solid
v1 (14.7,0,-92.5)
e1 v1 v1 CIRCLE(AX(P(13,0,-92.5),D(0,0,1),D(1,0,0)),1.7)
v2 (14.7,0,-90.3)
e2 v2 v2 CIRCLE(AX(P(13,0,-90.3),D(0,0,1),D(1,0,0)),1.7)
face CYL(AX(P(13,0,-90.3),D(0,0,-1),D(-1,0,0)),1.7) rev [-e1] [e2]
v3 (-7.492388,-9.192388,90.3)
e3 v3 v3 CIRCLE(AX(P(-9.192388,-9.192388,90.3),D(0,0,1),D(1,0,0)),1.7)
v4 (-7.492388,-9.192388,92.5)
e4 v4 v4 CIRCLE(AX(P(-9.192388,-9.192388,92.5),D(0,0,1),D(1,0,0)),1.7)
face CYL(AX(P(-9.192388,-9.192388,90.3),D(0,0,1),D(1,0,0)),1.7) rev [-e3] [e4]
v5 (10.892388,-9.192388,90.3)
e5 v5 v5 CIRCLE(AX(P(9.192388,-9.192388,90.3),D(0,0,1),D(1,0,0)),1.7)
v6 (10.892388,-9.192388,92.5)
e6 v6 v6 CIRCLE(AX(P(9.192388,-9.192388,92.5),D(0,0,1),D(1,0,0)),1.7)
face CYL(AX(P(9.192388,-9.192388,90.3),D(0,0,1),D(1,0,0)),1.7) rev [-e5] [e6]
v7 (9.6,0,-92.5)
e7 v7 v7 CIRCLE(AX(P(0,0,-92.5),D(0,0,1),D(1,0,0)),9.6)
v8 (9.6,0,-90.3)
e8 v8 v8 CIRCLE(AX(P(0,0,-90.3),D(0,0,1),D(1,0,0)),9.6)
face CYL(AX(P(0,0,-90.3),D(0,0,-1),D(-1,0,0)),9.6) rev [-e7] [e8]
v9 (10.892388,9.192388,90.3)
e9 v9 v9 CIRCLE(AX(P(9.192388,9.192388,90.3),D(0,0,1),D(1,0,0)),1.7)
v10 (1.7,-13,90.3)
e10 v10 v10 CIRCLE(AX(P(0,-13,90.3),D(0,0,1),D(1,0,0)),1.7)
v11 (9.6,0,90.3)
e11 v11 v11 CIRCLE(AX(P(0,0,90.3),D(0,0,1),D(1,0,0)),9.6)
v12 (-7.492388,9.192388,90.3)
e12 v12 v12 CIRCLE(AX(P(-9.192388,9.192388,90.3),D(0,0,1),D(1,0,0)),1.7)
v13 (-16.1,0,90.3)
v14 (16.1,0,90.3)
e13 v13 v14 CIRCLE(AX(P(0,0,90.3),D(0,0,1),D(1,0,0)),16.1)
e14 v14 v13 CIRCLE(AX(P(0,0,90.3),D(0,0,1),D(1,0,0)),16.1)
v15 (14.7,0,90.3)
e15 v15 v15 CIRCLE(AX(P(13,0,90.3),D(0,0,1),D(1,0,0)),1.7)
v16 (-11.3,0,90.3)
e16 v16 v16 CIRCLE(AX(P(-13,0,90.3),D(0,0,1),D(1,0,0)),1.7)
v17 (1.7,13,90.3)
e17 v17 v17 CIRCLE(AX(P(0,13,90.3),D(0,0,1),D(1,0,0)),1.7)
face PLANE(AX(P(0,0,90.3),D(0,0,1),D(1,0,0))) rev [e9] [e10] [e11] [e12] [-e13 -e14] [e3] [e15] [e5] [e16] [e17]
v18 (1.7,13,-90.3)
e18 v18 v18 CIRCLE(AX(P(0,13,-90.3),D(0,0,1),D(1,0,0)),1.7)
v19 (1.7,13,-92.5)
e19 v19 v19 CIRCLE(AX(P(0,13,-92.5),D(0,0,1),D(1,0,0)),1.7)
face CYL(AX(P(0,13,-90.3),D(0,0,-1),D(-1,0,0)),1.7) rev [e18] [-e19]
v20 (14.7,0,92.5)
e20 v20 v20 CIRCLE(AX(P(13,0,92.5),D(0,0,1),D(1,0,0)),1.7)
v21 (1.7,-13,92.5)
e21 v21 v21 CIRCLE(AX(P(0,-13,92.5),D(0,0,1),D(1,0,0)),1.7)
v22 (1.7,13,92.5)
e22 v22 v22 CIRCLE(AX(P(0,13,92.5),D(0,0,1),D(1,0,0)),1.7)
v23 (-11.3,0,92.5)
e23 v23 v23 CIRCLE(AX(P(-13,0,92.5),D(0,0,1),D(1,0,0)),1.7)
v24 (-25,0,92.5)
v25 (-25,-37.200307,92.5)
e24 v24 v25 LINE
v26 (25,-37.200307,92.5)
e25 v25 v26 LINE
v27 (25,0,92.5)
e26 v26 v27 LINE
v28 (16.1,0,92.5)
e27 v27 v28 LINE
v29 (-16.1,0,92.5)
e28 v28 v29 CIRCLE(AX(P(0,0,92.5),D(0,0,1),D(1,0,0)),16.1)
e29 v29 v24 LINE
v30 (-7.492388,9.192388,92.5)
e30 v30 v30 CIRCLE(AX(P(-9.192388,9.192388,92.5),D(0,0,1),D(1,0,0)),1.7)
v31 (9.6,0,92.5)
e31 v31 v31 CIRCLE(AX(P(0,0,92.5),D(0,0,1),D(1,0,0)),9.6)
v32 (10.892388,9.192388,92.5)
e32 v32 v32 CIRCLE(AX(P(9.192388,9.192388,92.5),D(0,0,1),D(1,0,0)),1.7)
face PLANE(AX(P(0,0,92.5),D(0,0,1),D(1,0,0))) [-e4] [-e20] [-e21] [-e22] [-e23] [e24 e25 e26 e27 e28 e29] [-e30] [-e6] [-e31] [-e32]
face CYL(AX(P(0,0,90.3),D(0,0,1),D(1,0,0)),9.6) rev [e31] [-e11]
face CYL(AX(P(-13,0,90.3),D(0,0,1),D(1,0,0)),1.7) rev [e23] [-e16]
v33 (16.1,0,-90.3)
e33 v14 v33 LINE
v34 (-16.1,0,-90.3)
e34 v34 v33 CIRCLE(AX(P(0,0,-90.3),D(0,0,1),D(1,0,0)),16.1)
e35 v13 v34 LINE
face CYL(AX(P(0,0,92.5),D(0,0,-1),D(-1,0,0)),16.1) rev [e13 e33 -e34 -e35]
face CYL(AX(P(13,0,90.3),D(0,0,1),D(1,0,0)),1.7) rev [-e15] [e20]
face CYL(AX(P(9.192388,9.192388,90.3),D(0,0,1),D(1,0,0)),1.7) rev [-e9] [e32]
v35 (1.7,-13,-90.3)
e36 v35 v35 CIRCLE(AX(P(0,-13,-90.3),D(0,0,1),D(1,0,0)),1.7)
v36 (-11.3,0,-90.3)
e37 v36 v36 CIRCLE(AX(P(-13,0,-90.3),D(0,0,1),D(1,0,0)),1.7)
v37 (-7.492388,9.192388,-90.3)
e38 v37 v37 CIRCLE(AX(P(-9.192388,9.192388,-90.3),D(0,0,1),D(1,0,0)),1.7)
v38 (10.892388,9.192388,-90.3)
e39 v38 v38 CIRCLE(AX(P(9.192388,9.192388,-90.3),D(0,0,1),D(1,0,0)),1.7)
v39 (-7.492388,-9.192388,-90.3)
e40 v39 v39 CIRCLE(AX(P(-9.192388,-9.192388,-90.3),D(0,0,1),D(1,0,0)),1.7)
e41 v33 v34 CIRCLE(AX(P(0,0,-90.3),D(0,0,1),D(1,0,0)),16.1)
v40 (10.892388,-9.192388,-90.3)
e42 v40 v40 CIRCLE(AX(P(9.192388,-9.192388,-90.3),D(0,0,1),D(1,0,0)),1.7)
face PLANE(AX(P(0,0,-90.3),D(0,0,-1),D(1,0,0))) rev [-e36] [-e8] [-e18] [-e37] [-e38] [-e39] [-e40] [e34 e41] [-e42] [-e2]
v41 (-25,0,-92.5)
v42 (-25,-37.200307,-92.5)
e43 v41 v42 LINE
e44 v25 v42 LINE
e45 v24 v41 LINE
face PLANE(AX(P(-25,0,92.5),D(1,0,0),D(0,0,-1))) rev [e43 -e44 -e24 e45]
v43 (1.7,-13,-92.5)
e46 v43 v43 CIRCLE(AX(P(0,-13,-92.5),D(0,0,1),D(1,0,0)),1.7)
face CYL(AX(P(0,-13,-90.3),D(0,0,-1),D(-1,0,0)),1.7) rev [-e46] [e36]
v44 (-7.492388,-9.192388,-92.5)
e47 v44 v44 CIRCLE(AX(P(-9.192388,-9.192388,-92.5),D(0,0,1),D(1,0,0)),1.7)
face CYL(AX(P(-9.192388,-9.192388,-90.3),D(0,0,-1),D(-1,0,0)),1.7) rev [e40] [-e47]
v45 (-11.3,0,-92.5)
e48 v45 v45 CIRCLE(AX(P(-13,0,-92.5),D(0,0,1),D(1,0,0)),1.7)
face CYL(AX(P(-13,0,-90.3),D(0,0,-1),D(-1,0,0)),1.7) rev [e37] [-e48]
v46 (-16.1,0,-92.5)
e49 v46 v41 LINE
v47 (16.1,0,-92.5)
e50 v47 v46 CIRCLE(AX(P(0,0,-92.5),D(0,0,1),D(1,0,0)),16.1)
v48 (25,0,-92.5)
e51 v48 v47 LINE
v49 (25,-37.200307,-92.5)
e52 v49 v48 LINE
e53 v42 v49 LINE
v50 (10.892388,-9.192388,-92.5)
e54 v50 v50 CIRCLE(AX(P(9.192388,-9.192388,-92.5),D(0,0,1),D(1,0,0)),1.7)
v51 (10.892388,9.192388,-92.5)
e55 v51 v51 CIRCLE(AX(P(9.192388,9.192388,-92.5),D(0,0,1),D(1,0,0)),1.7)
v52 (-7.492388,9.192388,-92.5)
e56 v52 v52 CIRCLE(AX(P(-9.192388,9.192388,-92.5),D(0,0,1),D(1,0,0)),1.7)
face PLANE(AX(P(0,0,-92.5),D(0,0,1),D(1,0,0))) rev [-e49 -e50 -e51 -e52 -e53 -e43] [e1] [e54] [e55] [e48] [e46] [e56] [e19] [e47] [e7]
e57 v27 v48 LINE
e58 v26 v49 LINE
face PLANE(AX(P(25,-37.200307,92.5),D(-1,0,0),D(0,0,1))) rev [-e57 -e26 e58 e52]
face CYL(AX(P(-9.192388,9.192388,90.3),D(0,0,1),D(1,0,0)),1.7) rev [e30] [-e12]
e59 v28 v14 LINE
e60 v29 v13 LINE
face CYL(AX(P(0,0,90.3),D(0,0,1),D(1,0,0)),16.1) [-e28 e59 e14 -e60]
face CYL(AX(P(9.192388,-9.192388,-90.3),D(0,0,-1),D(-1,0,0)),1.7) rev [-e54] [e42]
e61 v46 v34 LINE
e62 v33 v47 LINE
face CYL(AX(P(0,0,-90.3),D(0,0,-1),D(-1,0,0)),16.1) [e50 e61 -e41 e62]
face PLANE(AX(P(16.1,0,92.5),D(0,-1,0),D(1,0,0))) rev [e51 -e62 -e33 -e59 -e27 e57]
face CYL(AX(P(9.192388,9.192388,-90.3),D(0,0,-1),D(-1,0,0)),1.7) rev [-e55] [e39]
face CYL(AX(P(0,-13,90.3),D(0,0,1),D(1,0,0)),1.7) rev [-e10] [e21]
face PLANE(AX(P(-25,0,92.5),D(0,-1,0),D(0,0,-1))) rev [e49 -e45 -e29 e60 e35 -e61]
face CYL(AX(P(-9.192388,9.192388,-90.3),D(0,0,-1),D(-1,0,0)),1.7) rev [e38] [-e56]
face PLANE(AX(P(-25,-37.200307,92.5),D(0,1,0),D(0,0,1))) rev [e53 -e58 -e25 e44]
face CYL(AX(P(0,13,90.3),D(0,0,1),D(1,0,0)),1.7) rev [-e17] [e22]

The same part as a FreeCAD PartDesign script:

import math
import FreeCAD as App
import Part
import Sketcher
from FreeCAD import Vector

doc = App.newDocument("Part")
params = doc.addObject("Spreadsheet::Sheet", "Params")
for row, (alias, value) in enumerate([
    ("sketch1_radius", "16.1 mm"),
    ("sketch1_width", "50 mm"),
    ("pad1_length", "185 mm"),
    ("sketch2_diameter", "32.2 mm"),
    ("sketch2_diameter2", "3.4 mm"),
    ("sketch2_diameter3", "19.2 mm"),
    ("pad2_length", "2.2 mm"),
], start=1):
    params.set(f"A{row}", alias)
    params.set(f"B{row}", "=" + value)
    params.setAlias(f"B{row}", alias)

body = doc.addObject("PartDesign::Body", "Body")

# Sketch on XY plane
sketch1 = doc.addObject("Sketcher::SketchObject", "Sketch")
body.addObject(sketch1)
sketch1.AttachmentSupport = (doc.XY_Plane, [""])
sketch1.MapMode = "FlatFace"
sketch1.addGeometry([
    Part.LineSegment(Vector(-25, 0, 0), Vector(-25, -37.200307, 0)),  # 0
    Part.LineSegment(Vector(-25, -37.200307, 0), Vector(25, -37.200307, 0)),  # 1
    Part.LineSegment(Vector(25, -37.200307, 0), Vector(25, 0, 0)),  # 2
    Part.LineSegment(Vector(25, 0, 0), Vector(16.1, 0, 0)),  # 3
    Part.ArcOfCircle(Part.Circle(Vector(0, 0, 0), Vector(0, 0, 1), 16.1), math.radians(180), math.radians(360)),  # 4
    Part.LineSegment(Vector(-16.1, 0, 0), Vector(-25, 0, 0)),  # 5
], False)
sketch1.addConstraint([
    Sketcher.Constraint("Coincident", 0, 2, 1, 1),
    Sketcher.Constraint("Coincident", 1, 2, 2, 1),
    Sketcher.Constraint("Coincident", 2, 2, 3, 1),
    Sketcher.Constraint("Coincident", 3, 2, 4, 2),
    Sketcher.Constraint("Coincident", 4, 1, 5, 1),
    Sketcher.Constraint("Coincident", 5, 2, 0, 1),
    Sketcher.Constraint("Vertical", 0),
    Sketcher.Constraint("Horizontal", 1),
    Sketcher.Constraint("Vertical", 2),
    Sketcher.Constraint("Horizontal", 3),
    Sketcher.Constraint("Horizontal", 5),
    Sketcher.Constraint("Coincident", 4, 3, -1, 1),
    Sketcher.Constraint("Symmetric", 2, 2, 5, 2, -1, 1),
    Sketcher.Constraint("PointOnObject", 2, 2, -1),
    Sketcher.Constraint("Radius", 4, 16.1),
    Sketcher.Constraint("DistanceX", 1, 1, 1, 2, 50.0),
    Sketcher.Constraint("DistanceY", 0, 2, 0, 1, 37.200307),
])
sketch1.setExpression("Constraints[14]", "Params.sketch1_radius")
sketch1.setExpression("Constraints[15]", "Params.sketch1_width")
pad1 = doc.addObject("PartDesign::Pad", "Pad")
body.addObject(pad1)
pad1.Profile = sketch1
pad1.setExpression("Length", "Params.pad1_length")
pad1.Midplane = True

# Sketch on XY plane
sketch2 = doc.addObject("Sketcher::SketchObject", "Sketch001")
body.addObject(sketch2)
sketch2.AttachmentSupport = (doc.XY_Plane, [""])
sketch2.MapMode = "FlatFace"
sketch2.AttachmentOffset = App.Placement(Vector(0, 0, 92.5), App.Rotation())
sketch2.addGeometry([
    Part.Circle(Vector(0, 0, 0), Vector(0, 0, 1), 16.1),  # 0
    Part.Circle(Vector(-9.192388, -9.192388, 0), Vector(0, 0, 1), 1.7),  # 1
    Part.Circle(Vector(0, -13, 0), Vector(0, 0, 1), 1.7),  # 2
    Part.Circle(Vector(9.192388, -9.192388, 0), Vector(0, 0, 1), 1.7),  # 3
    Part.Circle(Vector(-13, 0, 0), Vector(0, 0, 1), 1.7),  # 4
    Part.Circle(Vector(-9.192388, 9.192388, 0), Vector(0, 0, 1), 1.7),  # 5
    Part.Circle(Vector(0, 0, 0), Vector(0, 0, 1), 9.6),  # 6
    Part.Circle(Vector(13, 0, 0), Vector(0, 0, 1), 1.7),  # 7
    Part.Circle(Vector(0, 13, 0), Vector(0, 0, 1), 1.7),  # 8
    Part.Circle(Vector(9.192388, 9.192388, 0), Vector(0, 0, 1), 1.7),  # 9
], False)
sketch2.addConstraint([
    Sketcher.Constraint("Coincident", 0, 3, -1, 1),
    Sketcher.Constraint("Coincident", 6, 3, -1, 1),
    Sketcher.Constraint("Equal", 1, 2),
    Sketcher.Constraint("Equal", 2, 3),
    Sketcher.Constraint("Equal", 3, 4),
    Sketcher.Constraint("Equal", 4, 5),
    Sketcher.Constraint("Equal", 5, 7),
    Sketcher.Constraint("Equal", 7, 8),
    Sketcher.Constraint("Equal", 8, 9),
    Sketcher.Constraint("Symmetric", 3, 3, 5, 3, -1, 1),
    Sketcher.Constraint("Symmetric", 4, 3, 7, 3, -1, 1),
    Sketcher.Constraint("Symmetric", 2, 3, 8, 3, -1, 1),
    Sketcher.Constraint("Symmetric", 1, 3, 9, 3, -1, 1),
    Sketcher.Constraint("Symmetric", 1, 3, 3, 3, -2),
    Sketcher.Constraint("PointOnObject", 2, 3, -2),
    Sketcher.Constraint("PointOnObject", 4, 3, -1),
    Sketcher.Constraint("Diameter", 0, 32.2),
    Sketcher.Constraint("Diameter", 1, 3.4),
    Sketcher.Constraint("Diameter", 6, 19.2),
    Sketcher.Constraint("DistanceY", 2, 3, -1, 1, 13.0),
    Sketcher.Constraint("DistanceX", 4, 3, -1, 1, 13.0),
    Sketcher.Constraint("DistanceX", 1, 3, -1, 1, 9.192388),
    Sketcher.Constraint("DistanceY", 1, 3, -1, 1, 9.192388),
])
sketch2.setExpression("Constraints[16]", "Params.sketch2_diameter")
sketch2.setExpression("Constraints[17]", "Params.sketch2_diameter2")
sketch2.setExpression("Constraints[18]", "Params.sketch2_diameter3")
pad2 = doc.addObject("PartDesign::Pad", "Pad001")
body.addObject(pad2)
pad2.Profile = sketch2
pad2.setExpression("Length", "Params.pad2_length")
pad2.Reversed = True
doc.recompute()

mirrored = doc.addObject("PartDesign::Mirrored", "Mirrored")
body.addObject(mirrored)
mirrored.Originals = [pad2]
mirrored.MirrorPlane = (doc.XY_Plane, [""])
body.Tip = mirrored

doc.recompute()
